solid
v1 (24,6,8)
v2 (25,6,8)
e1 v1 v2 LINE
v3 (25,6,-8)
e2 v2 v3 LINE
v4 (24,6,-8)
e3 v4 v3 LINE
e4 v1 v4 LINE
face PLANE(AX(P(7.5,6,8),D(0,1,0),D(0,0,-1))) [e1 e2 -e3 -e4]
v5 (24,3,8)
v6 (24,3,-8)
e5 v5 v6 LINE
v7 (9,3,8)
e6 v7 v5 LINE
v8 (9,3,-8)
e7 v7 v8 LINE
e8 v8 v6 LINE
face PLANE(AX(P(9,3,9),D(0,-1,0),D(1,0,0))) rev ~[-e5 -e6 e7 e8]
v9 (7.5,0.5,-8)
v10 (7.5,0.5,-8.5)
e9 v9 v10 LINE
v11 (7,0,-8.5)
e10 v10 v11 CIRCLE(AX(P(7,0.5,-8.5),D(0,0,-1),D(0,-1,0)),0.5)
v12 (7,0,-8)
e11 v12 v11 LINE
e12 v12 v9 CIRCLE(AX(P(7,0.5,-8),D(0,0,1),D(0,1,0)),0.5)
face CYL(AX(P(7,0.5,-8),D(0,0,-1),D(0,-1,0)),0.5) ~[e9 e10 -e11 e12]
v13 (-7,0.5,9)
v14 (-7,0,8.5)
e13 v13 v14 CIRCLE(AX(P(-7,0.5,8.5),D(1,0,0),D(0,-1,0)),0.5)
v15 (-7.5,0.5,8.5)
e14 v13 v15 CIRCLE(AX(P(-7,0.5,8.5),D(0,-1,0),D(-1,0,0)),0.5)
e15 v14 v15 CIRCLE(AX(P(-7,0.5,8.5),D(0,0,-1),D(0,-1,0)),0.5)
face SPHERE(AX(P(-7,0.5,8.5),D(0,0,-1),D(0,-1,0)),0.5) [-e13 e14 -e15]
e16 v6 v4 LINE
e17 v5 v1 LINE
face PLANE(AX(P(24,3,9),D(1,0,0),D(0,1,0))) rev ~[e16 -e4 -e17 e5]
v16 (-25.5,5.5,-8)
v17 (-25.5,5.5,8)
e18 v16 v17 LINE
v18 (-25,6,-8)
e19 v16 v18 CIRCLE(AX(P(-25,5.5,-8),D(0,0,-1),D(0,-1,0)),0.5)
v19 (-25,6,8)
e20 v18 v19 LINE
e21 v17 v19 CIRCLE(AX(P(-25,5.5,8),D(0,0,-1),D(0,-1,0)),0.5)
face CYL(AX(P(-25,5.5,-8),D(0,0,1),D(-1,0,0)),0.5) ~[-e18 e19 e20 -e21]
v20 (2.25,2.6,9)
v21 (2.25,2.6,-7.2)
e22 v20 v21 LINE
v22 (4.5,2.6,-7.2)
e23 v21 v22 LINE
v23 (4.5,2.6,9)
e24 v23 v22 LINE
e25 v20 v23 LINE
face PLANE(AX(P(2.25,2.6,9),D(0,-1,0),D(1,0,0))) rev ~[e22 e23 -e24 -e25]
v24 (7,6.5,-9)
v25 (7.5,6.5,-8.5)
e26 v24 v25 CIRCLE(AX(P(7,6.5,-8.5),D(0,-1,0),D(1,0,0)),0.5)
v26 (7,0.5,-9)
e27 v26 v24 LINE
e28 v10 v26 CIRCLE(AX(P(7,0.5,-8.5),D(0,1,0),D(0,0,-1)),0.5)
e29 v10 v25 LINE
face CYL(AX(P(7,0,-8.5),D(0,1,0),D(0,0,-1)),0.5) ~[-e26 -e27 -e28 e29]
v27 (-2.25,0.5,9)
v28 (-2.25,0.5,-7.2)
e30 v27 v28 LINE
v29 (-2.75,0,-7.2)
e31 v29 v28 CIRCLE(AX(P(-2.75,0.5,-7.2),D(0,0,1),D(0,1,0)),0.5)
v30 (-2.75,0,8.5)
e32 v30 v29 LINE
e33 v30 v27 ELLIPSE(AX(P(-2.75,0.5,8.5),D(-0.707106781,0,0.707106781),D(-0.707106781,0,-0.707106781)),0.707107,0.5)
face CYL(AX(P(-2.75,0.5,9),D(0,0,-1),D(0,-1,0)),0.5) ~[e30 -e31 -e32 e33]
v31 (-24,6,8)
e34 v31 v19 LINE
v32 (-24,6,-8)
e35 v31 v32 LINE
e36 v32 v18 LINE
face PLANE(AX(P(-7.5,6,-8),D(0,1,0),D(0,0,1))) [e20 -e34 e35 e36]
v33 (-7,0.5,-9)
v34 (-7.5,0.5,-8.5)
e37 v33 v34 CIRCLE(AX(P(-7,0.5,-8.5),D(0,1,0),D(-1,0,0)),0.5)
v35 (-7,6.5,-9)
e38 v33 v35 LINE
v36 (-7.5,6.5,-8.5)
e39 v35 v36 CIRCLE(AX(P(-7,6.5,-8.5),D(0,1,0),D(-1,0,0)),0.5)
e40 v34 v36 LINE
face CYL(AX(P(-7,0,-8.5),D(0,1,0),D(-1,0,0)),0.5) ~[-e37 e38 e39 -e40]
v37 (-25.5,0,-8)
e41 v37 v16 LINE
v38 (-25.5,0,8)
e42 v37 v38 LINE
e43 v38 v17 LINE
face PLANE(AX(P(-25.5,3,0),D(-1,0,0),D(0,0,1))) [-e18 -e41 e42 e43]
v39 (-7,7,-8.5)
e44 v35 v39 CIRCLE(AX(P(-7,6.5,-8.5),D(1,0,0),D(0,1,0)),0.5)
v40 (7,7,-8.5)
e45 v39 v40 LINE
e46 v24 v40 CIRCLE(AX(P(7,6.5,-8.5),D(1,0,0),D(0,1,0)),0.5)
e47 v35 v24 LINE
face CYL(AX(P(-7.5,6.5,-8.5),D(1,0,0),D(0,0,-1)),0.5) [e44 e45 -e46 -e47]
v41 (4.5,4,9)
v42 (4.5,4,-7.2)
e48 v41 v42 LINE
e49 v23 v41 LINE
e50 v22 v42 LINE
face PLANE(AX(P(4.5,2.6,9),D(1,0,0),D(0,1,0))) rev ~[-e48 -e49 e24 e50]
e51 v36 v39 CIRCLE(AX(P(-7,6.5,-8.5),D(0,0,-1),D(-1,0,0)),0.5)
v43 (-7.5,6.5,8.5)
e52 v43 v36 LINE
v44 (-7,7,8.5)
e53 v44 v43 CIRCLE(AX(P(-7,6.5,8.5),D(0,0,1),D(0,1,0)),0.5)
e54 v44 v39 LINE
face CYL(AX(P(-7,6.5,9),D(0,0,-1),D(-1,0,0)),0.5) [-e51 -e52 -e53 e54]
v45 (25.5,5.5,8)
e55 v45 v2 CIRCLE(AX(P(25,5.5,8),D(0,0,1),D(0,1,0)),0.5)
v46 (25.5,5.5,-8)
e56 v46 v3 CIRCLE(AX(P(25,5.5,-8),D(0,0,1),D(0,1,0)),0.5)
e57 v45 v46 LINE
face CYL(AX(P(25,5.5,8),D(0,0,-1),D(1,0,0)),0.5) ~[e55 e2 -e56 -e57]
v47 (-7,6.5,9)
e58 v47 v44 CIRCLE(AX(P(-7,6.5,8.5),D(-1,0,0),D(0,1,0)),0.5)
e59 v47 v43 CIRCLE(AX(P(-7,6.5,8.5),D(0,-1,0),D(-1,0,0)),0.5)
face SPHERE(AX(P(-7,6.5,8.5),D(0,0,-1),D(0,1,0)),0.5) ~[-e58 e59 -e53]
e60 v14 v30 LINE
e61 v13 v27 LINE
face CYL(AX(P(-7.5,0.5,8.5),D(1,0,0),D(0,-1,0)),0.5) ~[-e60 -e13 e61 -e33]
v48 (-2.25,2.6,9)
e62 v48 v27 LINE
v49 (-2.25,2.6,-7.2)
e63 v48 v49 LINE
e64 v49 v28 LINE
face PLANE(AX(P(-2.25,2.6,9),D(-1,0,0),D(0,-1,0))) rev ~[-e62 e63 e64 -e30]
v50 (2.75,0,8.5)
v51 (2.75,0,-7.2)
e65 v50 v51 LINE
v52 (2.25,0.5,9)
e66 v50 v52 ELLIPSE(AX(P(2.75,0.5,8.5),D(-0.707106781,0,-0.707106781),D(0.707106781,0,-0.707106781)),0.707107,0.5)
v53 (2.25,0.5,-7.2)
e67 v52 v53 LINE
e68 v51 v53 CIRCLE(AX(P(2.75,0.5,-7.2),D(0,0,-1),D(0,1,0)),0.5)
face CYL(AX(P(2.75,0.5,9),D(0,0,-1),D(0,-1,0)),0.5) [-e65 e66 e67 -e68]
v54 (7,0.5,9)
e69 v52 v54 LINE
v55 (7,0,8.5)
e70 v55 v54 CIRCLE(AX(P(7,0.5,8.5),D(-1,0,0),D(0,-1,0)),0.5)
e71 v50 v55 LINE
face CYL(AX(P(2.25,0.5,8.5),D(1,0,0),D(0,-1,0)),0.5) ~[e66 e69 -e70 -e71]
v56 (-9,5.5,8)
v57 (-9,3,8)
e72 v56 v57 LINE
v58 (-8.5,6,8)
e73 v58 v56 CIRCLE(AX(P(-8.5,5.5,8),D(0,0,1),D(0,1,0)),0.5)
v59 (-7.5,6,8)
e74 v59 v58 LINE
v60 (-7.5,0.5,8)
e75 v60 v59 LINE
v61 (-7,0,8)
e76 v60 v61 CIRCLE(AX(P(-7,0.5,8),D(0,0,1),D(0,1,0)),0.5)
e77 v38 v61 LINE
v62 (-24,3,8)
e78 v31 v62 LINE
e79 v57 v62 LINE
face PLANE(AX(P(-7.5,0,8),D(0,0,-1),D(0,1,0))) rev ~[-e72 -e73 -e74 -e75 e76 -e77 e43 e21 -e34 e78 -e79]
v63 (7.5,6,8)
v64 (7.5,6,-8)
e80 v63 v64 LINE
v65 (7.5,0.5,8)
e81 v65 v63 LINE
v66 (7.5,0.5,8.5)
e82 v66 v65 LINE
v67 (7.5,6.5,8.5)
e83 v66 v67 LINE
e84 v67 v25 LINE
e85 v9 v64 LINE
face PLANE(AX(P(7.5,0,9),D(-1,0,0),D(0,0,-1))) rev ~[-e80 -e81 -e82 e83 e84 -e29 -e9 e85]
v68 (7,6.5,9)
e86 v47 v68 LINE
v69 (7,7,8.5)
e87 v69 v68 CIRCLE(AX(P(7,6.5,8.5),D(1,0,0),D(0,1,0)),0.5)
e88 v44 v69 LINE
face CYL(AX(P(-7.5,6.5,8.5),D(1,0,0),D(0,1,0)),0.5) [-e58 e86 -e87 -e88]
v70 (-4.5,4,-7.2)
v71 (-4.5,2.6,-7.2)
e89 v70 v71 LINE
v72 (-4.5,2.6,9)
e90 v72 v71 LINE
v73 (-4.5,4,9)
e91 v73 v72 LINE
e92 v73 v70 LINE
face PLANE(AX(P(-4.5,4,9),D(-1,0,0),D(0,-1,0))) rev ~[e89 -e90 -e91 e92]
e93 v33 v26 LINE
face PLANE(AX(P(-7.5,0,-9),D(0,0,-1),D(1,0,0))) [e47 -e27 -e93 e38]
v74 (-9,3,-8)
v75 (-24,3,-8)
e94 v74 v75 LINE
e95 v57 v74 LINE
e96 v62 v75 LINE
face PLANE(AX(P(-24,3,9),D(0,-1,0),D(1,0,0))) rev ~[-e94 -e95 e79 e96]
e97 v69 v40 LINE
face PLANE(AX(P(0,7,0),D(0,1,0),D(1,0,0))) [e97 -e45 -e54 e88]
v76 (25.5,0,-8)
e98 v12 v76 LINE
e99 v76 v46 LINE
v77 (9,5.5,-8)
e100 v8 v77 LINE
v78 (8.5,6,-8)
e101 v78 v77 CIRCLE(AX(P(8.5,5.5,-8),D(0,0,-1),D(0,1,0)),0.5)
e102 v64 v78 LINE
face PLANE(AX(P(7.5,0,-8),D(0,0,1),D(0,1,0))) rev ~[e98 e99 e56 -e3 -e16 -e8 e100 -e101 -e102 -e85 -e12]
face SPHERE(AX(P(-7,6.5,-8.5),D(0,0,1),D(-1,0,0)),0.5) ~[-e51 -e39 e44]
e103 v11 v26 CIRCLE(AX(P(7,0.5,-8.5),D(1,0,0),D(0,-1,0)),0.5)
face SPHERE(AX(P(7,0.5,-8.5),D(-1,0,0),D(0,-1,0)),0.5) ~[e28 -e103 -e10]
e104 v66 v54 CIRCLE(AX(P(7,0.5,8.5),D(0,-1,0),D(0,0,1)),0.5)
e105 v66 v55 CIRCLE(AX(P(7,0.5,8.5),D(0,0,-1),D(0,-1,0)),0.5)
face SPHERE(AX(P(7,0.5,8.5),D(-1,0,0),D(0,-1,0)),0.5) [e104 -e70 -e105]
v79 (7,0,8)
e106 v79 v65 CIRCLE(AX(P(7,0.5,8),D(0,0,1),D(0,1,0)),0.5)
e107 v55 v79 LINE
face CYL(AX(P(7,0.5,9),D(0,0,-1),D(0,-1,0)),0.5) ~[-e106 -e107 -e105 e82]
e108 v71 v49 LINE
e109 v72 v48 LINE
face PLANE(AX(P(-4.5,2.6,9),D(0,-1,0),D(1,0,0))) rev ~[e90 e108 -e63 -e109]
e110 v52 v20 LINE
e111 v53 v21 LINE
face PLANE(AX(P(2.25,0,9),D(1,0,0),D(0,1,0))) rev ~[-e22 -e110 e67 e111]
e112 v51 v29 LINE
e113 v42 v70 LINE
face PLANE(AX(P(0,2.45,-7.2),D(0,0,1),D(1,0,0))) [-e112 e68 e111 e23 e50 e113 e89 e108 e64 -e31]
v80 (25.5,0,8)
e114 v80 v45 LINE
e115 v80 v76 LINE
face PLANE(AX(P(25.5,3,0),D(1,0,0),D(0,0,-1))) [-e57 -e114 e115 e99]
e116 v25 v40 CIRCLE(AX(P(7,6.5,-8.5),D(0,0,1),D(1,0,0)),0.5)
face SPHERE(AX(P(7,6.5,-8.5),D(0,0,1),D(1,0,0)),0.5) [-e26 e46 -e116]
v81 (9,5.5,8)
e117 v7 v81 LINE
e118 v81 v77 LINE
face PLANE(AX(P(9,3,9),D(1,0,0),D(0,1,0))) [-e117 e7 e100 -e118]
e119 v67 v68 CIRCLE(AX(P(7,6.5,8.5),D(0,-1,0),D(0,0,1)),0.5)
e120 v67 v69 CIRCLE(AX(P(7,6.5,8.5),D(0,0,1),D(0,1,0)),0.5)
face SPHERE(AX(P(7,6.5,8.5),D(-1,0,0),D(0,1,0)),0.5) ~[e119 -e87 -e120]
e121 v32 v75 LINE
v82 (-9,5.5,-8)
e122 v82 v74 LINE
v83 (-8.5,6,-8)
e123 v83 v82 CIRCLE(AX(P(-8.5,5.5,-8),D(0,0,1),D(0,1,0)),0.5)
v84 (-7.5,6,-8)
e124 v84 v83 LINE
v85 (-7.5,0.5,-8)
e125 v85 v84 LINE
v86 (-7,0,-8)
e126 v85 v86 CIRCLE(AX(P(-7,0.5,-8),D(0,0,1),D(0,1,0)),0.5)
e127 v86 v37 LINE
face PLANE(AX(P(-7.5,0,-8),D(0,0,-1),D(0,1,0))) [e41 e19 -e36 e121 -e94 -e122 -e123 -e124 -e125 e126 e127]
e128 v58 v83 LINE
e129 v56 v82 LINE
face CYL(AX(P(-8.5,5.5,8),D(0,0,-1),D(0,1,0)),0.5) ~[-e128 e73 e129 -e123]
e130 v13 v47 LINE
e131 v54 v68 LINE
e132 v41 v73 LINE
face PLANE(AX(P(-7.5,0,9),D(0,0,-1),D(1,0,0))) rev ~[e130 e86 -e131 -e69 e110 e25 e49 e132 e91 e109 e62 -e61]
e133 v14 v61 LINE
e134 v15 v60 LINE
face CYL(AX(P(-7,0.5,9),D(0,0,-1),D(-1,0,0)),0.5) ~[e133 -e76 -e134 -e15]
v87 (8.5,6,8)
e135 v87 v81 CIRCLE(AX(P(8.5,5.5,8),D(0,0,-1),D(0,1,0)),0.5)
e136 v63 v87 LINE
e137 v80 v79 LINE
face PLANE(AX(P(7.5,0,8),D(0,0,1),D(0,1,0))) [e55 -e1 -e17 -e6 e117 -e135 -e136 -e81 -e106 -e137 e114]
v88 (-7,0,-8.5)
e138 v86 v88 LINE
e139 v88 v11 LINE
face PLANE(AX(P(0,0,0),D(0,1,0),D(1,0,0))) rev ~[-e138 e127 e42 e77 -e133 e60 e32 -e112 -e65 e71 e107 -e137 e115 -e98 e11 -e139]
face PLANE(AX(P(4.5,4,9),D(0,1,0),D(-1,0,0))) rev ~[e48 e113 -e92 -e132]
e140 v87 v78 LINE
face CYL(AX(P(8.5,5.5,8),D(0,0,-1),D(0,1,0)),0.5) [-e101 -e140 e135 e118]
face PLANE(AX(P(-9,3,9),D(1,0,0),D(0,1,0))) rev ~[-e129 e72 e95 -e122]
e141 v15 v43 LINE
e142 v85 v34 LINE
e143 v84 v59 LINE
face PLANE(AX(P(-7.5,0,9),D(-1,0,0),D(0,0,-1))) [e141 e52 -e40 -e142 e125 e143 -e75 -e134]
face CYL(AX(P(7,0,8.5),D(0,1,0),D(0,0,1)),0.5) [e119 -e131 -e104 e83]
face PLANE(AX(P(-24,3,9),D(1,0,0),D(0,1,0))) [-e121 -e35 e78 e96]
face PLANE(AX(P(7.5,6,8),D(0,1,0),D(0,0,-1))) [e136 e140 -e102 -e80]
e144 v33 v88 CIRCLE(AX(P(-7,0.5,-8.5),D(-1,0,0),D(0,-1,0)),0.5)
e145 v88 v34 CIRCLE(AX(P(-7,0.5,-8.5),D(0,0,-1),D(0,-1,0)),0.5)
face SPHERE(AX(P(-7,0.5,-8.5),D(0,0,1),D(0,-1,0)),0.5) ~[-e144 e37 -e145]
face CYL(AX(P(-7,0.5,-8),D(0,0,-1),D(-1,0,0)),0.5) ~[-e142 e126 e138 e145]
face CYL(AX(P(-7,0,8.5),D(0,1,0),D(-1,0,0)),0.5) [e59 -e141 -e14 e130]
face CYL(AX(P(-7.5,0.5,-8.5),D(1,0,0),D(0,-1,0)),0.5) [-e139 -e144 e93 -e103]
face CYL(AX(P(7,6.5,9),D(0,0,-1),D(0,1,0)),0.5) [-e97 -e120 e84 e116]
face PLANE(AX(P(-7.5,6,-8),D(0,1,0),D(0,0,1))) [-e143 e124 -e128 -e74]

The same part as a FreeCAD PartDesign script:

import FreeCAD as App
import Part
import Sketcher
from FreeCAD import Vector


def edges_at(feature, points):
    """Names of the edges that pass closest to the given points."""
    edges = feature.Shape.Edges
    near = lambda p: min(range(len(edges)), key=lambda i: edges[i].distToShape(Part.Vertex(*p))[0])
    return sorted({f"Edge{near(p) + 1}" for p in points})


def add_polygon(sketch, points):
    """Adds a closed chain of lines whose ends are joined by coincident constraints."""
    first, n = sketch.GeometryCount, len(points)
    for a, b in zip(points, points[1:] + points[:1]):
        sketch.addGeometry(Part.LineSegment(App.Vector(*a, 0), App.Vector(*b, 0)), False)
    for i in range(n):
        sketch.addConstraint(Sketcher.Constraint("Coincident", first + i, 2, first + (i + 1) % n, 1))

doc = App.newDocument("Part")
body = doc.addObject("PartDesign::Body", "Body")

sketch1 = body.newObject("Sketcher::SketchObject", "Sketch")
sketch1.AttachmentSupport = (doc.getObject("XZ_Plane"), [""])
sketch1.MapMode = "FlatFace"
add_polygon(sketch1, [(-7.5, -9), (-7.5, 9), (7.5, 9), (7.5, -9)])
sketch1.addConstraint([
    Sketcher.Constraint("Vertical", 0),
    Sketcher.Constraint("Horizontal", 1),
    Sketcher.Constraint("Vertical", 2),
    Sketcher.Constraint("Horizontal", 3),
    Sketcher.Constraint("Symmetric", 0, 2, 2, 2, -1, 1),
    Sketcher.Constraint("DistanceX", 1, 1, 1, 2, 15.0),
    Sketcher.Constraint("DistanceY", 0, 1, 0, 2, 18.0),
])
pad1 = body.newObject("PartDesign::Pad", "Pad")
pad1.Profile = sketch1
pad1.Length = 7
pad1.Reversed = True

sketch2 = body.newObject("Sketcher::SketchObject", "Sketch001")
sketch2.AttachmentSupport = (doc.getObject("XY_Plane"), [""])
sketch2.MapMode = "FlatFace"
sketch2.AttachmentOffset = App.Placement(Vector(0, 0, 9), App.Rotation())
add_polygon(sketch2, [(-2.25, 2.6), (-2.25, 0), (2.25, 0), (2.25, 2.6), (4.5, 2.6), (4.5, 4), (-4.5, 4), (-4.5, 2.6)])
sketch2.addConstraint([
    Sketcher.Constraint("Vertical", 0),
    Sketcher.Constraint("Horizontal", 1),
    Sketcher.Constraint("Vertical", 2),
    Sketcher.Constraint("Horizontal", 3),
    Sketcher.Constraint("Vertical", 4),
    Sketcher.Constraint("Horizontal", 5),
    Sketcher.Constraint("Vertical", 6),
    Sketcher.Constraint("Horizontal", 7),
    Sketcher.Constraint("Symmetric", 0, 2, 1, 2, -1, 1),
    Sketcher.Constraint("Symmetric", 3, 2, 6, 2, -2),
    Sketcher.Constraint("DistanceX", 5, 2, 5, 1, 9.0),
    Sketcher.Constraint("DistanceX", 1, 1, 1, 2, 4.5),
    Sketcher.Constraint("DistanceY", 0, 2, 0, 1, 2.6),
    Sketcher.Constraint("DistanceY", 4, 1, 4, 2, 1.4),
])
pocket1 = body.newObject("PartDesign::Pocket", "Pocket")
pocket1.Profile = sketch2
pocket1.Length = 16.2

sketch3 = body.newObject("Sketcher::SketchObject", "Sketch002")
sketch3.AttachmentSupport = (doc.getObject("YZ_Plane"), [""])
sketch3.MapMode = "FlatFace"
sketch3.AttachmentOffset = App.Placement(Vector(0, 0, -7.5), App.Rotation())
add_polygon(sketch3, [(6, -8), (0, -8), (0, 8), (6, 8)])
sketch3.addConstraint([
    Sketcher.Constraint("Horizontal", 0),
    Sketcher.Constraint("Vertical", 1),
    Sketcher.Constraint("Horizontal", 2),
    Sketcher.Constraint("Vertical", 3),
    Sketcher.Constraint("Symmetric", 0, 2, 1, 2, -1, 1),
    Sketcher.Constraint("DistanceX", 0, 2, 0, 1, 6.0),
    Sketcher.Constraint("DistanceY", 1, 1, 1, 2, 16.0),
])
pad2 = body.newObject("PartDesign::Pad", "Pad001")
pad2.Profile = sketch3
pad2.Length = 18
pad2.Reversed = True

sketch4 = body.newObject("Sketcher::SketchObject", "Sketch003")
sketch4.AttachmentSupport = (doc.getObject("YZ_Plane"), [""])
sketch4.MapMode = "FlatFace"
sketch4.AttachmentOffset = App.Placement(Vector(0, 0, 7.5), App.Rotation())
add_polygon(sketch4, [(6, 8), (0, 8), (0, -8), (6, -8)])
sketch4.addConstraint([
    Sketcher.Constraint("Horizontal", 0),
    Sketcher.Constraint("Vertical", 1),
    Sketcher.Constraint("Horizontal", 2),
    Sketcher.Constraint("Vertical", 3),
    Sketcher.Constraint("Symmetric", 0, 2, 1, 2, -1, 1),
    Sketcher.Constraint("DistanceX", 0, 2, 0, 1, 6.0),
    Sketcher.Constraint("DistanceY", 1, 2, 1, 1, 16.0),
])
pad3 = body.newObject("PartDesign::Pad", "Pad002")
pad3.Profile = sketch4
pad3.Length = 18

sketch5 = body.newObject("Sketcher::SketchObject", "Sketch004")
sketch5.AttachmentSupport = (doc.getObject("XY_Plane"), [""])
sketch5.MapMode = "FlatFace"
sketch5.AttachmentOffset = App.Placement(Vector(0, 0, 9), App.Rotation())
add_polygon(sketch5, [(9, 6), (9, 3), (24, 3), (24, 6)])
add_polygon(sketch5, [(-24, 6), (-24, 3), (-9, 3), (-9, 6)])
sketch5.addConstraint([
    Sketcher.Constraint("Vertical", 0),
    Sketcher.Constraint("Horizontal", 1),
    Sketcher.Constraint("Vertical", 2),
    Sketcher.Constraint("Horizontal", 3),
    Sketcher.Constraint("Vertical", 4),
    Sketcher.Constraint("Horizontal", 5),
    Sketcher.Constraint("Vertical", 6),
    Sketcher.Constraint("Horizontal", 7),
    Sketcher.Constraint("Symmetric", 1, 2, 4, 2, -2),
    Sketcher.Constraint("Symmetric", 3, 2, 6, 2, -2),
    Sketcher.Constraint("DistanceX", 1, 1, 1, 2, 15.0),
    Sketcher.Constraint("DistanceY", 0, 2, 0, 1, 3.0),
    Sketcher.Constraint("DistanceX", -1, 1, 0, 2, 9.0),
    Sketcher.Constraint("DistanceY", -1, 1, 0, 2, 3.0),
])
pocket2 = body.newObject("PartDesign::Pocket", "Pocket001")
pocket2.Profile = sketch5
pocket2.Length = 32.55
doc.recompute()

fillet = body.newObject("PartDesign::Fillet", "Fillet")
fillet.Base = (pocket2, edges_at(pocket2, [
    (-7.5, 7, 0),
    (4.875, 0, 9),
    (0, 7, 9),
    (-2.25, 0, 0.9),
    (2.25, 0, 0.9),
    (-7.5, 0, 8.5),
    (-25.5, 6, 0),
    (7.5, 7, 0),
    (-4.875, 0, 9),
    (-7.5, 0, -8.5),
    (0, 0, -9),
    (7.5, 0, -8.5),
    (7.5, 0, 8.5),
    (25.5, 6, 0),
    (7.5, 3.5, 9),
    (-7.5, 3.5, 9),
    (-7.5, 3.5, -9),
    (9, 6, 0),
    (7.5, 3.5, -9),
    (0, 7, -9),
    (-9, 6, 0),
]))
fillet.Radius = 0.5

doc.recompute()
